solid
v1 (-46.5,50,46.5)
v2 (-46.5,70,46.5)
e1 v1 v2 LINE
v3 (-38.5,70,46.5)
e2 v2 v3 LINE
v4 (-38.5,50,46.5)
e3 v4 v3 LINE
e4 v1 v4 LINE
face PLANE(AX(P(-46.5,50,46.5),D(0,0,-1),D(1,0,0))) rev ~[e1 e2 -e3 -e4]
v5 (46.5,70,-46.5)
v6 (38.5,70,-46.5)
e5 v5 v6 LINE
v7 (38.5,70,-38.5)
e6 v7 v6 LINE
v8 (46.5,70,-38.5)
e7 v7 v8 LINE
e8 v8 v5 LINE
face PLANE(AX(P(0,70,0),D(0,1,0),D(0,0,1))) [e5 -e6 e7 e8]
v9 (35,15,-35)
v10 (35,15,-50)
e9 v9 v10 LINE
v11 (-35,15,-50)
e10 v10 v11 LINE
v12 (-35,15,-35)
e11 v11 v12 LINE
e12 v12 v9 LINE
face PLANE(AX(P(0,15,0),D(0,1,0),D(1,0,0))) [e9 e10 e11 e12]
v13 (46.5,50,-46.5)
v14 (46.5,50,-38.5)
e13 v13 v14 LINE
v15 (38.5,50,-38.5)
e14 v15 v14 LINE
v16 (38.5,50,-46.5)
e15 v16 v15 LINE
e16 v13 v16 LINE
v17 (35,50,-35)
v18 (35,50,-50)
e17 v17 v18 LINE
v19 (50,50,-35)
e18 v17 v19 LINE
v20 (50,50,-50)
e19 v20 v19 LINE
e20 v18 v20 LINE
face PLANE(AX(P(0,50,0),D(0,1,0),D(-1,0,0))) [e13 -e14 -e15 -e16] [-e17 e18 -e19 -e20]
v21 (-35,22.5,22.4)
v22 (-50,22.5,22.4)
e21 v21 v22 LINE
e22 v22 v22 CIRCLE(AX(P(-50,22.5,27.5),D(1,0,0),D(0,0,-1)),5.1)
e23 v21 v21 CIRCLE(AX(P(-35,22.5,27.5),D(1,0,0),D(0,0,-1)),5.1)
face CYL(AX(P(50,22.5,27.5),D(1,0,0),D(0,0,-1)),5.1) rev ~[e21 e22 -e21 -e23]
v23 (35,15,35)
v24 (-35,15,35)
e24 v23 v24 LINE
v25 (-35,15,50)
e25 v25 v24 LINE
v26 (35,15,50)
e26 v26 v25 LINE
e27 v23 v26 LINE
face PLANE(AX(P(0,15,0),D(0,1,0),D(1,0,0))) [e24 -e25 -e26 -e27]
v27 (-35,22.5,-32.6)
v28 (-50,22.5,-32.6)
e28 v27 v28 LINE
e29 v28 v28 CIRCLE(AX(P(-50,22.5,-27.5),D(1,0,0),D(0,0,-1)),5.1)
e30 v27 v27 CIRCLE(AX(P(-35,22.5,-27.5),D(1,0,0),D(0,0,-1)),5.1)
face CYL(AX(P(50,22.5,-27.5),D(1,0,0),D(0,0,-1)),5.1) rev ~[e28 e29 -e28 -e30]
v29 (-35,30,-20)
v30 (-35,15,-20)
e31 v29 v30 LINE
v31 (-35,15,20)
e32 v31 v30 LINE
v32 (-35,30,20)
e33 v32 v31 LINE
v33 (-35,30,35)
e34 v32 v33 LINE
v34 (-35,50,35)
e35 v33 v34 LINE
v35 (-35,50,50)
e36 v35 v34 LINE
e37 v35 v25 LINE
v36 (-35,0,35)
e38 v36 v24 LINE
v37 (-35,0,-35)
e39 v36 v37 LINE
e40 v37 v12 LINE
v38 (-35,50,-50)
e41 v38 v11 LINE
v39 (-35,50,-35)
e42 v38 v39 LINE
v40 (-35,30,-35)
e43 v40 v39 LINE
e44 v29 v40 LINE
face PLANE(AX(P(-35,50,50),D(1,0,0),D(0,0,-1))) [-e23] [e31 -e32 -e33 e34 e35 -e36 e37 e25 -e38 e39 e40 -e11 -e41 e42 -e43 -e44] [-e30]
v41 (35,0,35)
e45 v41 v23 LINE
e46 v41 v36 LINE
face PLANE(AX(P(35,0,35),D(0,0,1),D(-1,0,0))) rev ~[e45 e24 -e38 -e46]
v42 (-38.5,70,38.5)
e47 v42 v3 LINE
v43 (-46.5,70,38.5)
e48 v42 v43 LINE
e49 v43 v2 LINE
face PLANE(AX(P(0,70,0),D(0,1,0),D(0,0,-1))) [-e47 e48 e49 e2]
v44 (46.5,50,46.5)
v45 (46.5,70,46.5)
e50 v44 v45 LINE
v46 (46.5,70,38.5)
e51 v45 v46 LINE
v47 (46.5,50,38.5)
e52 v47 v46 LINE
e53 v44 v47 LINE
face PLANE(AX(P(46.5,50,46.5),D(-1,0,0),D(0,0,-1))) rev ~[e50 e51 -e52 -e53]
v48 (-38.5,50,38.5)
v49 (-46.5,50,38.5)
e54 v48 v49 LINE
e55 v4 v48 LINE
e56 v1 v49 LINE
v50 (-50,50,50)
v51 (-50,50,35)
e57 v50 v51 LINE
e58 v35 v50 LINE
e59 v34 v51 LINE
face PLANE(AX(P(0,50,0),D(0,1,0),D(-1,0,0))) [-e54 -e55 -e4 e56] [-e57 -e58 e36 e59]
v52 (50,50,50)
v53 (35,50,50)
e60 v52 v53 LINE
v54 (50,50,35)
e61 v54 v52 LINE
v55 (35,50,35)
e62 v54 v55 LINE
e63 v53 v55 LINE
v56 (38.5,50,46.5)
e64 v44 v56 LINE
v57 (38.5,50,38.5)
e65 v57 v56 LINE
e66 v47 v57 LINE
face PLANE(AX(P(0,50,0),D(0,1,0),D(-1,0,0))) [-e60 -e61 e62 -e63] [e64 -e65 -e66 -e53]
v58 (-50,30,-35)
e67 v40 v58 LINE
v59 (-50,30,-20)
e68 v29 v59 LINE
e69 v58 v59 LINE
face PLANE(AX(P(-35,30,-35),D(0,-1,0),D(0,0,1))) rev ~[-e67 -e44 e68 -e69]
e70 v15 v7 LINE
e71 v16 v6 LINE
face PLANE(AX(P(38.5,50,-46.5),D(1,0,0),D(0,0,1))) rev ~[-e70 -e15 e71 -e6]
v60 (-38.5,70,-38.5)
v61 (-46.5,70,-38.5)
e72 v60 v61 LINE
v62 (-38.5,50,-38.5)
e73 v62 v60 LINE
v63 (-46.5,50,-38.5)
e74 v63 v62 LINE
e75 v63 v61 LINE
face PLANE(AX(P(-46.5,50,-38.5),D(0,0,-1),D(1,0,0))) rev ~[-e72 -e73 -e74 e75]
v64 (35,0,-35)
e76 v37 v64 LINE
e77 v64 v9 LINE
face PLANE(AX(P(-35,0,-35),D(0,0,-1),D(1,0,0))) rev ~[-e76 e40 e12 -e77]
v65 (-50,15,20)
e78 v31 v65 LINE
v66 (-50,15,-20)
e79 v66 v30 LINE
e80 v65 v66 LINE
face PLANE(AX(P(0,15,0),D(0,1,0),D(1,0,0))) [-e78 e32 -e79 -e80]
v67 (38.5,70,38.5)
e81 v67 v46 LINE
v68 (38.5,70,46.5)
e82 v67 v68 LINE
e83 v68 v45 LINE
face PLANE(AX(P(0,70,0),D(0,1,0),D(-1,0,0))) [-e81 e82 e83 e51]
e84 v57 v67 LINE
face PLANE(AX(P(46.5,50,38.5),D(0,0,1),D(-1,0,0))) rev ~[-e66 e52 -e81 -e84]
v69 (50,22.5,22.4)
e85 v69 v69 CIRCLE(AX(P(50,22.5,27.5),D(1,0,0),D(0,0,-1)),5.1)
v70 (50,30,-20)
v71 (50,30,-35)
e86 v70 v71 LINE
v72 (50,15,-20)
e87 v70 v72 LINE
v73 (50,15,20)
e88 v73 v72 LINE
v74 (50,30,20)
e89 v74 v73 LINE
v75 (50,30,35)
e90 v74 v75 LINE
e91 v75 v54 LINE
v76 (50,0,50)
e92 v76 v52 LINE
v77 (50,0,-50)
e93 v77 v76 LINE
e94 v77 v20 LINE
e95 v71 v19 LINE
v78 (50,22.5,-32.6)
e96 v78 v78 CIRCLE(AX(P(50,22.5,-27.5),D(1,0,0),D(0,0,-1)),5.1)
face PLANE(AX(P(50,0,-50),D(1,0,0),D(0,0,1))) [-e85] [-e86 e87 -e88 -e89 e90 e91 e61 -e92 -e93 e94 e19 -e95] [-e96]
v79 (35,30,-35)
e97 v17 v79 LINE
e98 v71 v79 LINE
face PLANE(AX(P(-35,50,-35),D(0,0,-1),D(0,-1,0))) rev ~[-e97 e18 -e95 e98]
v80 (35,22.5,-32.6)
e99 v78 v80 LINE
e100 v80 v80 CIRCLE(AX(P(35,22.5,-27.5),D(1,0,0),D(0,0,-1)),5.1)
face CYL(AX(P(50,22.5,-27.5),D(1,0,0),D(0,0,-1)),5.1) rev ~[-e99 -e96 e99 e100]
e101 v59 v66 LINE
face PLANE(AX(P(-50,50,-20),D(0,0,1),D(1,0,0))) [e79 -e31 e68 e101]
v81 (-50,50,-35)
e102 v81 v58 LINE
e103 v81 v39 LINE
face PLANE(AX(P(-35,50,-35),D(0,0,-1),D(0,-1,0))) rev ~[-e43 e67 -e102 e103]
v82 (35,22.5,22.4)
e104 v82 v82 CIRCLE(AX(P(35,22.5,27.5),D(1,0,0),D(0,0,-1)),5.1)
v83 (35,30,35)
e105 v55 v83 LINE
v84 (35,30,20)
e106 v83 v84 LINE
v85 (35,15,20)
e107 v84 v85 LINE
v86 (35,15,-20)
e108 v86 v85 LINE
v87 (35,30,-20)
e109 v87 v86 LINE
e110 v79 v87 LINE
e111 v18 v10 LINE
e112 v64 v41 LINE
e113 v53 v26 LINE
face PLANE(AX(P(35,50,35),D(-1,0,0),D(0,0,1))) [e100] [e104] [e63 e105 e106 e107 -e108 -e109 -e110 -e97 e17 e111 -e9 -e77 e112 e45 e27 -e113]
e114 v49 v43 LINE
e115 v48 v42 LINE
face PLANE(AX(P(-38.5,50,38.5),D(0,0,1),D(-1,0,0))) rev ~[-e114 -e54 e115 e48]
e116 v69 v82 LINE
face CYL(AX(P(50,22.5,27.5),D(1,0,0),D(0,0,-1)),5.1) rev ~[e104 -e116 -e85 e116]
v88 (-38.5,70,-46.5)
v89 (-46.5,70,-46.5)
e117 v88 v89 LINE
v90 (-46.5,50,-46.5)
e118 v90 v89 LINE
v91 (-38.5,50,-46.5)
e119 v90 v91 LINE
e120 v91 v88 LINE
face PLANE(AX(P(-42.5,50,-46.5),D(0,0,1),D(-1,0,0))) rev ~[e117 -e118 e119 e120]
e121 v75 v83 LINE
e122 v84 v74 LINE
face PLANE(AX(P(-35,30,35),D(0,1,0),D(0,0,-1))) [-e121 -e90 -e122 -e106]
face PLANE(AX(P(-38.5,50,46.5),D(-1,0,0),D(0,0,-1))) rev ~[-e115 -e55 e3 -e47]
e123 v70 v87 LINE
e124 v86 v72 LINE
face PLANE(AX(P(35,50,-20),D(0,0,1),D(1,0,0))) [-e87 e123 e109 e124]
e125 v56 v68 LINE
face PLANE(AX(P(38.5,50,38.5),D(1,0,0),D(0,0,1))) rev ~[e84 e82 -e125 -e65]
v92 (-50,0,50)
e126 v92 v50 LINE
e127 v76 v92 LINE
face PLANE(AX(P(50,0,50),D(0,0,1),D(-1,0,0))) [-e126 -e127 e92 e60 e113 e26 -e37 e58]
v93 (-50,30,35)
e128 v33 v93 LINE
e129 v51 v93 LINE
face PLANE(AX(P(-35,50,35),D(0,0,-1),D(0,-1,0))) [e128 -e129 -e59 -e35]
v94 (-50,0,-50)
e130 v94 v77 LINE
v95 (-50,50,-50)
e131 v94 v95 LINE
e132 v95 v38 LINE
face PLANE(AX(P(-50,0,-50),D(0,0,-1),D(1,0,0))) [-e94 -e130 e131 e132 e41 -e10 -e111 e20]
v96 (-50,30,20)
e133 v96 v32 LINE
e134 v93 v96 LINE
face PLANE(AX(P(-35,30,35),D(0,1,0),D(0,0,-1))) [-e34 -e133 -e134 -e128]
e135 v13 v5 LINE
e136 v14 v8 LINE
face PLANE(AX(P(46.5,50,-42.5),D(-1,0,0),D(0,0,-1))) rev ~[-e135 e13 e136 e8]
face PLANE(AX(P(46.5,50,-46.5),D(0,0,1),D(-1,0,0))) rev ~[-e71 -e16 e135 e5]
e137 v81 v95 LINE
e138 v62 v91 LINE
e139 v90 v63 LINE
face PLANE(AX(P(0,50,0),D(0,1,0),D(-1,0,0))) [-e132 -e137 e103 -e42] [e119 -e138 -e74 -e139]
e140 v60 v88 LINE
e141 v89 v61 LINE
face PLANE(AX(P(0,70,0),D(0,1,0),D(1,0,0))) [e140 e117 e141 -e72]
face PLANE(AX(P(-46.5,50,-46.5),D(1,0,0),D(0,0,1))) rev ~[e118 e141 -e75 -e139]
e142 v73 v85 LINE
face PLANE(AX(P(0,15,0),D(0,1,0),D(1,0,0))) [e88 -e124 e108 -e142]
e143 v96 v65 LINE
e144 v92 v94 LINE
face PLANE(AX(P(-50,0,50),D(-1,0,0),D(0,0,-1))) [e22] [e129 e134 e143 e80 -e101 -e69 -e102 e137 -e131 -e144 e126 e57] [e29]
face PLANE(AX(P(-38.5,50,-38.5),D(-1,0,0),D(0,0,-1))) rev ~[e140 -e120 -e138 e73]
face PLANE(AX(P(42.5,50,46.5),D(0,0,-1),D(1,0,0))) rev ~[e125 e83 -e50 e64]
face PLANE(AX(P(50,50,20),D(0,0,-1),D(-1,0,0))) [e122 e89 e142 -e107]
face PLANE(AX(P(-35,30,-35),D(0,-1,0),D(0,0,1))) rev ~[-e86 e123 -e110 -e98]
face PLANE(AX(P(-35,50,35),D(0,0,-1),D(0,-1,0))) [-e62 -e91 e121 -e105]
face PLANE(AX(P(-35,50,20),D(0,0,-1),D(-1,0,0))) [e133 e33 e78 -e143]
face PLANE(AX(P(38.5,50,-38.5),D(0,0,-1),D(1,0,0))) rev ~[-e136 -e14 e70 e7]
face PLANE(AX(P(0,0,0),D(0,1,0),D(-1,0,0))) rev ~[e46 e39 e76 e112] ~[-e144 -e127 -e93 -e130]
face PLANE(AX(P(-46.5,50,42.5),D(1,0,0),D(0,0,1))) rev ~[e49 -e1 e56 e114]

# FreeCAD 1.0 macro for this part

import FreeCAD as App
import Part
import Sketcher

V = App.Vector

doc = App.newDocument("Part")
body = doc.addObject("PartDesign::Body", "Body")

# Sketch on XZ plane
sketch1 = doc.addObject("Sketcher::SketchObject", "Sketch")
body.addObject(sketch1)
sketch1.AttachmentSupport = (doc.XZ_Plane, [""])
sketch1.MapMode = "FlatFace"
sketch1.addGeometry([
    Part.LineSegment(V(-50, 50, 0), V(50, 50, 0)),  # 0
    Part.LineSegment(V(50, 50, 0), V(50, -50, 0)),  # 1
    Part.LineSegment(V(50, -50, 0), V(-50, -50, 0)),  # 2
    Part.LineSegment(V(-50, -50, 0), V(-50, 50, 0)),  # 3
    Part.LineSegment(V(35, -35, 0), V(35, 35, 0)),  # 4
    Part.LineSegment(V(35, 35, 0), V(-35, 35, 0)),  # 5
    Part.LineSegment(V(-35, 35, 0), V(-35, -35, 0)),  # 6
    Part.LineSegment(V(-35, -35, 0), V(35, -35, 0)),  # 7
], False)
sketch1.addConstraint([
    Sketcher.Constraint("Coincident", 0, 2, 1, 1),
    Sketcher.Constraint("Coincident", 1, 2, 2, 1),
    Sketcher.Constraint("Coincident", 2, 2, 3, 1),
    Sketcher.Constraint("Coincident", 3, 2, 0, 1),
    Sketcher.Constraint("Coincident", 4, 2, 5, 1),
    Sketcher.Constraint("Coincident", 5, 2, 6, 1),
    Sketcher.Constraint("Coincident", 6, 2, 7, 1),
    Sketcher.Constraint("Coincident", 7, 2, 4, 1),
    Sketcher.Constraint("Horizontal", 0),
    Sketcher.Constraint("Vertical", 1),
    Sketcher.Constraint("Horizontal", 2),
    Sketcher.Constraint("Vertical", 3),
    Sketcher.Constraint("Vertical", 4),
    Sketcher.Constraint("Horizontal", 5),
    Sketcher.Constraint("Vertical", 6),
    Sketcher.Constraint("Horizontal", 7),
    Sketcher.Constraint("Symmetric", 0, 2, 2, 2, -1, 1),
    Sketcher.Constraint("Symmetric", 4, 2, 6, 2, -1, 1),
    Sketcher.Constraint("Equal", 2, 1),
    Sketcher.Constraint("Equal", 7, 4),
    Sketcher.Constraint("DistanceX", 0, 1, 0, 2, 100.0),
    Sketcher.Constraint("DistanceX", 4, 2, 0, 2, 15.0),
])
pad1 = doc.addObject("PartDesign::Pad", "Pad")
body.addObject(pad1)
pad1.Profile = sketch1
pad1.Length = 50
pad1.Reversed = True

# Sketch on XZ plane
sketch2 = doc.addObject("Sketcher::SketchObject", "Sketch001")
body.addObject(sketch2)
sketch2.AttachmentSupport = (doc.XZ_Plane, [""])
sketch2.MapMode = "FlatFace"
sketch2.AttachmentOffset = App.Placement(V(0, 0, -50), App.Rotation())
sketch2.addGeometry([
    Part.LineSegment(V(-35, -50, 0), V(-35, -35, 0)),  # 0
    Part.LineSegment(V(-35, -35, 0), V(35, -35, 0)),  # 1
    Part.LineSegment(V(35, -35, 0), V(35, -50, 0)),  # 2
    Part.LineSegment(V(35, -50, 0), V(-35, -50, 0)),  # 3
    Part.LineSegment(V(-35, -20, 0), V(-50, -20, 0)),  # 4
    Part.LineSegment(V(-50, -20, 0), V(-50, 20, 0)),  # 5
    Part.LineSegment(V(-50, 20, 0), V(-35, 20, 0)),  # 6
    Part.LineSegment(V(-35, 20, 0), V(-35, -20, 0)),  # 7
    Part.LineSegment(V(50, -20, 0), V(35, -20, 0)),  # 8
    Part.LineSegment(V(35, -20, 0), V(35, 20, 0)),  # 9
    Part.LineSegment(V(35, 20, 0), V(50, 20, 0)),  # 10
    Part.LineSegment(V(50, 20, 0), V(50, -20, 0)),  # 11
    Part.LineSegment(V(-35, 35, 0), V(-35, 50, 0)),  # 12
    Part.LineSegment(V(-35, 50, 0), V(35, 50, 0)),  # 13
    Part.LineSegment(V(35, 50, 0), V(35, 35, 0)),  # 14
    Part.LineSegment(V(35, 35, 0), V(-35, 35, 0)),  # 15
], False)
sketch2.addConstraint([
    Sketcher.Constraint("Coincident", 0, 2, 1, 1),
    Sketcher.Constraint("Coincident", 1, 2, 2, 1),
    Sketcher.Constraint("Coincident", 2, 2, 3, 1),
    Sketcher.Constraint("Coincident", 3, 2, 0, 1),
    Sketcher.Constraint("Coincident", 4, 2, 5, 1),
    Sketcher.Constraint("Coincident", 5, 2, 6, 1),
    Sketcher.Constraint("Coincident", 6, 2, 7, 1),
    Sketcher.Constraint("Coincident", 7, 2, 4, 1),
    Sketcher.Constraint("Coincident", 8, 2, 9, 1),
    Sketcher.Constraint("Coincident", 9, 2, 10, 1),
    Sketcher.Constraint("Coincident", 10, 2, 11, 1),
    Sketcher.Constraint("Coincident", 11, 2, 8, 1),
    Sketcher.Constraint("Coincident", 12, 2, 13, 1),
    Sketcher.Constraint("Coincident", 13, 2, 14, 1),
    Sketcher.Constraint("Coincident", 14, 2, 15, 1),
    Sketcher.Constraint("Coincident", 15, 2, 12, 1),
    Sketcher.Constraint("Vertical", 0),
    Sketcher.Constraint("Horizontal", 1),
    Sketcher.Constraint("Vertical", 2),
    Sketcher.Constraint("Horizontal", 3),
    Sketcher.Constraint("Horizontal", 4),
    Sketcher.Constraint("Vertical", 5),
    Sketcher.Constraint("Horizontal", 6),
    Sketcher.Constraint("Vertical", 7),
    Sketcher.Constraint("Horizontal", 8),
    Sketcher.Constraint("Vertical", 9),
    Sketcher.Constraint("Horizontal", 10),
    Sketcher.Constraint("Vertical", 11),
    Sketcher.Constraint("Vertical", 12),
    Sketcher.Constraint("Horizontal", 13),
    Sketcher.Constraint("Vertical", 14),
    Sketcher.Constraint("Horizontal", 15),
    Sketcher.Constraint("Symmetric", 6, 2, 8, 2, -1, 1),
    Sketcher.Constraint("Symmetric", 4, 2, 10, 2, -1, 1),
    Sketcher.Constraint("Symmetric", 2, 2, 12, 2, -1, 1),
    Sketcher.Constraint("Symmetric", 0, 2, 14, 2, -1, 1),
    Sketcher.Constraint("Horizontal", 7, 2, 8, 2),
    Sketcher.Constraint("Vertical", 3, 2, 6, 2),
    Sketcher.Constraint("Vertical", 2, 2, 8, 2),
    Sketcher.Constraint("Equal", 10, 0),
    Sketcher.Constraint("DistanceY", 5, 1, 5, 2, 40.0),
    Sketcher.Constraint("DistanceX", 1, 1, 1, 2, 70.0),
    Sketcher.Constraint("DistanceX", 4, 2, 4, 1, 15.0),
    Sketcher.Constraint("DistanceY", 0, 2, -1, 1, 35.0),
])
pocket1 = doc.addObject("PartDesign::Pocket", "Pocket")
body.addObject(pocket1)
pocket1.Profile = sketch2
pocket1.Length = 35
pocket1.Reversed = True

# Sketch on YZ plane
sketch3 = doc.addObject("Sketcher::SketchObject", "Sketch002")
body.addObject(sketch3)
sketch3.AttachmentSupport = (doc.YZ_Plane, [""])
sketch3.MapMode = "FlatFace"
sketch3.AttachmentOffset = App.Placement(V(0, 0, -35), App.Rotation())
sketch3.addGeometry([
    Part.LineSegment(V(30, 35, 0), V(30, 20, 0)),  # 0
    Part.LineSegment(V(30, 20, 0), V(50, 20, 0)),  # 1
    Part.LineSegment(V(50, 20, 0), V(50, 35, 0)),  # 2
    Part.LineSegment(V(50, 35, 0), V(30, 35, 0)),  # 3
    Part.LineSegment(V(30, -35, 0), V(50, -35, 0)),  # 4
    Part.LineSegment(V(50, -35, 0), V(50, -20, 0)),  # 5
    Part.LineSegment(V(50, -20, 0), V(30, -20, 0)),  # 6
    Part.LineSegment(V(30, -20, 0), V(30, -35, 0)),  # 7
], False)
sketch3.addConstraint([
    Sketcher.Constraint("Coincident", 0, 2, 1, 1),
    Sketcher.Constraint("Coincident", 1, 2, 2, 1),
    Sketcher.Constraint("Coincident", 2, 2, 3, 1),
    Sketcher.Constraint("Coincident", 3, 2, 0, 1),
    Sketcher.Constraint("Coincident", 4, 2, 5, 1),
    Sketcher.Constraint("Coincident", 5, 2, 6, 1),
    Sketcher.Constraint("Coincident", 6, 2, 7, 1),
    Sketcher.Constraint("Coincident", 7, 2, 4, 1),
    Sketcher.Constraint("Vertical", 0),
    Sketcher.Constraint("Horizontal", 1),
    Sketcher.Constraint("Vertical", 2),
    Sketcher.Constraint("Horizontal", 3),
    Sketcher.Constraint("Horizontal", 4),
    Sketcher.Constraint("Vertical", 5),
    Sketcher.Constraint("Horizontal", 6),
    Sketcher.Constraint("Vertical", 7),
    Sketcher.Constraint("Symmetric", 2, 2, 4, 2, -1),
    Sketcher.Constraint("Symmetric", 0, 2, 6, 2, -1),
    Sketcher.Constraint("DistanceX", 1, 1, 1, 2, 20.0),
    Sketcher.Constraint("DistanceY", 0, 2, 0, 1, 15.0),
    Sketcher.Constraint("DistanceY", -1, 1, 0, 2, 20.0),
    Sketcher.Constraint("DistanceX", -1, 1, 0, 2, 30.0),
])
pocket2 = doc.addObject("PartDesign::Pocket", "Pocket001")
body.addObject(pocket2)
pocket2.Profile = sketch3
pocket2.Type = "ThroughAll"
pocket2.Midplane = True

# Sketch on YZ plane
sketch4 = doc.addObject("Sketcher::SketchObject", "Sketch003")
body.addObject(sketch4)
sketch4.AttachmentSupport = (doc.YZ_Plane, [""])
sketch4.MapMode = "FlatFace"
sketch4.AttachmentOffset = App.Placement(V(0, 0, 50), App.Rotation())
sketch4.addGeometry([
    Part.Circle(V(22, 28, 0), V(0, 0, 1), 5),
    Part.Circle(V(22, -28, 0), V(0, 0, 1), 5),
], False)
sketch4.addConstraint([
    Sketcher.Constraint("Equal", 0, 1),
    Sketcher.Constraint("Symmetric", 0, 3, 1, 3, -1),
    Sketcher.Constraint("Diameter", 0, 10.2),
    Sketcher.Constraint("DistanceY", 1, 3, 0, 3, 55.0),
    Sketcher.Constraint("DistanceX", -1, 1, 0, 3, 22.5),
])
pocket3 = doc.addObject("PartDesign::Pocket", "Pocket002")
body.addObject(pocket3)
pocket3.Profile = sketch4
pocket3.Length = 156

# Sketch on XZ plane
sketch5 = doc.addObject("Sketcher::SketchObject", "Sketch004")
body.addObject(sketch5)
sketch5.AttachmentSupport = (doc.XZ_Plane, [""])
sketch5.MapMode = "FlatFace"
sketch5.AttachmentOffset = App.Placement(V(0, 0, -50), App.Rotation())
sketch5.addGeometry([
    Part.LineSegment(V(-46, -38, 0), V(-38, -38, 0)),
    Part.LineSegment(V(-38, -38, 0), V(-38, -46, 0)),
    Part.LineSegment(V(-38, -46, 0), V(-46, -46, 0)),
    Part.LineSegment(V(-46, -46, 0), V(-46, -38, 0)),
], False)
sketch5.addConstraint([
    Sketcher.Constraint("Coincident", 0, 2, 1, 1),
    Sketcher.Constraint("Coincident", 1, 2, 2, 1),
    Sketcher.Constraint("Coincident", 2, 2, 3, 1),
    Sketcher.Constraint("Coincident", 3, 2, 0, 1),
    Sketcher.Constraint("Horizontal", 0),
    Sketcher.Constraint("Vertical", 1),
    Sketcher.Constraint("Horizontal", 2),
    Sketcher.Constraint("Vertical", 3),
    Sketcher.Constraint("Equal", 2, 1),
    Sketcher.Constraint("DistanceX", 0, 1, 0, 2, 8.0),
    Sketcher.Constraint("DistanceX", 0, 2, -1, 1, 38.5),
    Sketcher.Constraint("DistanceY", 0, 2, -1, 1, 38.5),
])
pad2 = doc.addObject("PartDesign::Pad", "Pad001")
body.addObject(pad2)
pad2.Profile = sketch5
pad2.Length = 20
pad2.Reversed = True
doc.recompute()

polarpattern = doc.addObject("PartDesign::PolarPattern", "PolarPattern")
body.addObject(polarpattern)
polarpattern.Originals = [pad2]
polarpattern.Axis = (doc.Y_Axis, [""])
polarpattern.Angle = 360
polarpattern.Occurrences = 4
body.Tip = polarpattern

doc.recompute()
